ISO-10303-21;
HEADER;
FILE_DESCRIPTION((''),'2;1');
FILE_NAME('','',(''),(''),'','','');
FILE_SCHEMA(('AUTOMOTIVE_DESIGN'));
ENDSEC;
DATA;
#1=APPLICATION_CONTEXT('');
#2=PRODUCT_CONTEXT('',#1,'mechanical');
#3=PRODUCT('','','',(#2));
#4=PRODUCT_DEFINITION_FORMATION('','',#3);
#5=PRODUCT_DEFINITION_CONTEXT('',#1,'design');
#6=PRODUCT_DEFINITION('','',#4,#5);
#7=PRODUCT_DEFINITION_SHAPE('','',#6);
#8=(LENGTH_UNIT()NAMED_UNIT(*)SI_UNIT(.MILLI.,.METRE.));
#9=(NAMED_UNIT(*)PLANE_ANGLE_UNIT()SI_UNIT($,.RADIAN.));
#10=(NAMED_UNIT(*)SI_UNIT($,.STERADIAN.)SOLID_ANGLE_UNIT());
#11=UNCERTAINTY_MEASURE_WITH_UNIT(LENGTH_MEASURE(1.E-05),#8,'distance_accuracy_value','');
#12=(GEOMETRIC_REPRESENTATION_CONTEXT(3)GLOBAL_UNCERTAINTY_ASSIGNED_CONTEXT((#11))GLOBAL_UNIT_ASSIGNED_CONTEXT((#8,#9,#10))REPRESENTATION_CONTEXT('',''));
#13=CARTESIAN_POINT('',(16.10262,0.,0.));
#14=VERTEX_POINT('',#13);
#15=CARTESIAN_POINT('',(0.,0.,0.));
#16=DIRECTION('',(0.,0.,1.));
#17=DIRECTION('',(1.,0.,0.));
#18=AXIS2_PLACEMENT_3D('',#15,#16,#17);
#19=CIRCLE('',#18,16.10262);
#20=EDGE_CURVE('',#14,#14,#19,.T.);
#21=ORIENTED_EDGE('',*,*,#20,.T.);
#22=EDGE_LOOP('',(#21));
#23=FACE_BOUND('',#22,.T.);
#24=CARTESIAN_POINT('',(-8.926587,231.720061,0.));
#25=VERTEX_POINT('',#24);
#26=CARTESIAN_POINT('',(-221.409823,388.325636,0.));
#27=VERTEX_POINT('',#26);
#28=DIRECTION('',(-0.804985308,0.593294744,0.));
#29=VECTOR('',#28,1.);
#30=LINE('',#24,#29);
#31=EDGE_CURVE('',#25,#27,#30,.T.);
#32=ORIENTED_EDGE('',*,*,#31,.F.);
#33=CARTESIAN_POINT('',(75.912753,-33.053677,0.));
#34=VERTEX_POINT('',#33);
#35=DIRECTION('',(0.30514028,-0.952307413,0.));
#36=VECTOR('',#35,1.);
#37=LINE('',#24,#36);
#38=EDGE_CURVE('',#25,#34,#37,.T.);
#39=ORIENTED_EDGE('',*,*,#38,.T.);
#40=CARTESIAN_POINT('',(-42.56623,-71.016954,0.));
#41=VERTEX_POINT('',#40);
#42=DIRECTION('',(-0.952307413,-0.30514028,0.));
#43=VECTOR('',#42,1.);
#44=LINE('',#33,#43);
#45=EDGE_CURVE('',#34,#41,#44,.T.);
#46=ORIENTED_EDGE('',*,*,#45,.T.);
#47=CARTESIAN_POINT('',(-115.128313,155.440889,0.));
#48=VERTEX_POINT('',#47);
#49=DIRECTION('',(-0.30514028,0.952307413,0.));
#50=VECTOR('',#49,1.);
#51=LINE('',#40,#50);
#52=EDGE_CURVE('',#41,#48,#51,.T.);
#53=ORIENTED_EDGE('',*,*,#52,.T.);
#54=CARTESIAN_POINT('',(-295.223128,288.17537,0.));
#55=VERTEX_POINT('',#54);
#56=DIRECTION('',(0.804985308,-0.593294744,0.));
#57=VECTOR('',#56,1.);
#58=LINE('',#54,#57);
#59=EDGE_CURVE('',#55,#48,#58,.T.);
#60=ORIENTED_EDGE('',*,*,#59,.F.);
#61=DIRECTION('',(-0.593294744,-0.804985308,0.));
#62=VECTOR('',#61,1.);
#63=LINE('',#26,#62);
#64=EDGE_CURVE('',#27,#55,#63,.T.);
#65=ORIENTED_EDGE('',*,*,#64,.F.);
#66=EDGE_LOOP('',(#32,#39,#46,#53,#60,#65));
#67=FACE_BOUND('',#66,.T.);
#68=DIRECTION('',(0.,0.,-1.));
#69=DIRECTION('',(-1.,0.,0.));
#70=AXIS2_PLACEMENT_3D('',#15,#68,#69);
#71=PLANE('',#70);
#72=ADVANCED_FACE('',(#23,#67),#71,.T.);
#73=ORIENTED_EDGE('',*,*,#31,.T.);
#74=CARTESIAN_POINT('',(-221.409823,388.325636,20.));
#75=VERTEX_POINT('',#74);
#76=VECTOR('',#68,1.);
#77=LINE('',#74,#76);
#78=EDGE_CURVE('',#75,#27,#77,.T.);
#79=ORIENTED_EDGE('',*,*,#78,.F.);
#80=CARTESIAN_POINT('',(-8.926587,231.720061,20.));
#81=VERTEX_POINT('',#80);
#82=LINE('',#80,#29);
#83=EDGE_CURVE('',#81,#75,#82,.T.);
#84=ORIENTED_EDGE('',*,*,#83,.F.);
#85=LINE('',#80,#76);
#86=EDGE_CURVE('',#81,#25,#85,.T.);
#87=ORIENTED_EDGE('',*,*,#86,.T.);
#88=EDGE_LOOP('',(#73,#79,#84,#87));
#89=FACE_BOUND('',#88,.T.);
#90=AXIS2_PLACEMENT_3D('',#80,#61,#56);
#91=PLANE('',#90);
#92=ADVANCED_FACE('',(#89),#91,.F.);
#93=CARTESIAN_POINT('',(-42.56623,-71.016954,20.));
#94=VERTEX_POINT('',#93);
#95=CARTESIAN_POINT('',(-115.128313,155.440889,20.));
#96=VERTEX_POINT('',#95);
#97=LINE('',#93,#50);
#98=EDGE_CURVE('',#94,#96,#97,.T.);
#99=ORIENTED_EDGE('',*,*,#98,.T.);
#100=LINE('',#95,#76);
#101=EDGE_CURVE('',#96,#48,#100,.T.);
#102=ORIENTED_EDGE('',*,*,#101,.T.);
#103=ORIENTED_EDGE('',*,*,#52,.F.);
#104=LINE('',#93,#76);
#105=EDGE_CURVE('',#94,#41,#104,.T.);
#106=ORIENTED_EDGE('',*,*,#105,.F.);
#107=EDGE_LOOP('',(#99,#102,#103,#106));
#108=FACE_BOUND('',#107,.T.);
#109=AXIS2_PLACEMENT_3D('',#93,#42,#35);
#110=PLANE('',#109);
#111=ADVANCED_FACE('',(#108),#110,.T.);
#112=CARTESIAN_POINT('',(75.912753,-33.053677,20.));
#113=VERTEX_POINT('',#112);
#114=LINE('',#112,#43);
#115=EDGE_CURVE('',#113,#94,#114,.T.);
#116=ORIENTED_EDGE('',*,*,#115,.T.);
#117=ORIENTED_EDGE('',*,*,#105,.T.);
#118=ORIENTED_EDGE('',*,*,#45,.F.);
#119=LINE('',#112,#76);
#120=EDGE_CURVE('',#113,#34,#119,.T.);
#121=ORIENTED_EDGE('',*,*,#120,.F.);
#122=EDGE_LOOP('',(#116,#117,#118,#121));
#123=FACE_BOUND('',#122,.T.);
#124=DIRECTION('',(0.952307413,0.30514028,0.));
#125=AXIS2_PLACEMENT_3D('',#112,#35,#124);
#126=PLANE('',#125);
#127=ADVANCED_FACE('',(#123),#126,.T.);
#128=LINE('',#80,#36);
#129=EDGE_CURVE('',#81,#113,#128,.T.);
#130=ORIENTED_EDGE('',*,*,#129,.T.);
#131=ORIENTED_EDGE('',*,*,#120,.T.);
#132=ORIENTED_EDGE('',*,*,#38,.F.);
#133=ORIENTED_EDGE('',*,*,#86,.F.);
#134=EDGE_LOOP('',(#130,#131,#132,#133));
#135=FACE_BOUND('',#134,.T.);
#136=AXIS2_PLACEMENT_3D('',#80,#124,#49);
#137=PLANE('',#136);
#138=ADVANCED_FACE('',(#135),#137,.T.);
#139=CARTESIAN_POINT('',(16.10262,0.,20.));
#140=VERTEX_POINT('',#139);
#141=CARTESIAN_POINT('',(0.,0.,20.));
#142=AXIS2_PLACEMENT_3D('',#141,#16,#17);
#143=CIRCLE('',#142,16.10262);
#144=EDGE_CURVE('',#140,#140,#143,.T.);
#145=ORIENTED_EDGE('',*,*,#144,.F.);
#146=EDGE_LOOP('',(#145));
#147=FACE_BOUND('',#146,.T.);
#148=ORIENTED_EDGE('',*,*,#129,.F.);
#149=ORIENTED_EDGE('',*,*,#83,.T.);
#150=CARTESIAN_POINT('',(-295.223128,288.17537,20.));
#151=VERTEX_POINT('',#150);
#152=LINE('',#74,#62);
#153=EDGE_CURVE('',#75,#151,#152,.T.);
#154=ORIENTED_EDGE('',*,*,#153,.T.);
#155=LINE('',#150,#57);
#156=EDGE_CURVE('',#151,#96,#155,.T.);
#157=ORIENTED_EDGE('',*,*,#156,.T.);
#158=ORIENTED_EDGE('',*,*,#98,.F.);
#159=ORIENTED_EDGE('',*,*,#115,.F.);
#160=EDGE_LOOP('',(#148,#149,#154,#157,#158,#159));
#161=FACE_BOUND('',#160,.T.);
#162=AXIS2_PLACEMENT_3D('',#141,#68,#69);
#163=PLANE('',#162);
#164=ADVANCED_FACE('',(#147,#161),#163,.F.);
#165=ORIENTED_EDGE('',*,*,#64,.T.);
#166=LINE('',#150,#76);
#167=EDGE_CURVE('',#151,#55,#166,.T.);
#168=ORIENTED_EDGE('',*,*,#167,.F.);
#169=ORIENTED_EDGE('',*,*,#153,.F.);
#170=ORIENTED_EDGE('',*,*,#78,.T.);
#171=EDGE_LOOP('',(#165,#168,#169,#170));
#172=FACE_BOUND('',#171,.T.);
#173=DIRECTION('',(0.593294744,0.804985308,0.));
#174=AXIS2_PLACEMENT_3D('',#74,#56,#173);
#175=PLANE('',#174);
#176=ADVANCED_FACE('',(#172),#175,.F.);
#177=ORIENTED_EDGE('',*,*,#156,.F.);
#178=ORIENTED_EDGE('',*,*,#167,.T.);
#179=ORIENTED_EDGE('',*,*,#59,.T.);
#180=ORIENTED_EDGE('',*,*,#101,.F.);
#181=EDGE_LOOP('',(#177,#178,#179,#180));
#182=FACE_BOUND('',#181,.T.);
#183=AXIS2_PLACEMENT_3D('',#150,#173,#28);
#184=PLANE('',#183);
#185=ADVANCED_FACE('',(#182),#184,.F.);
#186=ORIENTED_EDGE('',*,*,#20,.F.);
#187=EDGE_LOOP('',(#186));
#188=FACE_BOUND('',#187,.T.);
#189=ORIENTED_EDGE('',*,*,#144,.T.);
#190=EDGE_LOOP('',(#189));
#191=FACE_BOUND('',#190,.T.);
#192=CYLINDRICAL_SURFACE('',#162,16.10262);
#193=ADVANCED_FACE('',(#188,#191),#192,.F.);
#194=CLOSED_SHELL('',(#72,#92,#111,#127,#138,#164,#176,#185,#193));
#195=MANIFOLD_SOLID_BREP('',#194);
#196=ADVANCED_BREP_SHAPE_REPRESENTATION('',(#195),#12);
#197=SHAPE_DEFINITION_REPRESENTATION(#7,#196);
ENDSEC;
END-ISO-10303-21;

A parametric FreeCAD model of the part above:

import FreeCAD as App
import Part
import Sketcher
from FreeCAD import Vector
Q = App.Units.Quantity

doc = App.newDocument("Part")
body = doc.addObject("PartDesign::Body", "Body")

# Sketch on XY plane
sketch1 = body.newObject("Sketcher::SketchObject", "Sketch")
sketch1.AttachmentSupport = (doc.getObject("XY_Plane"), [""])
sketch1.MapMode = "FlatFace"
sketch1.addGeometry(Part.LineSegment(Vector(76, -33, 0), Vector(-9, 232, 0)), False)
sketch1.addGeometry(Part.LineSegment(Vector(-9, 232, 0), Vector(-221, 388, 0)), False)
sketch1.addGeometry(Part.LineSegment(Vector(-221, 388, 0), Vector(-295, 288, 0)), False)
sketch1.addGeometry(Part.LineSegment(Vector(-295, 288, 0), Vector(-115, 155, 0)), False)
sketch1.addGeometry(Part.LineSegment(Vector(-115, 155, 0), Vector(-43, -71, 0)), False)
sketch1.addGeometry(Part.LineSegment(Vector(-43, -71, 0), Vector(76, -33, 0)), False)
sketch1.addGeometry(Part.Circle(Vector(0, 0, 0), Vector(0, 0, 1), 16), False)
sketch1.addConstraint(Sketcher.Constraint("Coincident", 0, 2, 1, 1))
sketch1.addConstraint(Sketcher.Constraint("Coincident", 1, 2, 2, 1))
sketch1.addConstraint(Sketcher.Constraint("Coincident", 2, 2, 3, 1))
sketch1.addConstraint(Sketcher.Constraint("Coincident", 3, 2, 4, 1))
sketch1.addConstraint(Sketcher.Constraint("Coincident", 4, 2, 5, 1))
sketch1.addConstraint(Sketcher.Constraint("Coincident", 5, 2, 0, 1))
sketch1.addConstraint(Sketcher.Constraint("Coincident", 6, 3, -1, 1))
sketch1.addConstraint(Sketcher.Constraint("Perpendicular", 1, 2))
sketch1.addConstraint(Sketcher.Constraint("Perpendicular", 2, 3))
sketch1.addConstraint(Sketcher.Constraint("Parallel", 0, 4))
sketch1.addConstraint(Sketcher.Constraint("Perpendicular", 4, 5))
sketch1.addConstraint(Sketcher.Constraint("Equal", 2, 5))
sketch1.addConstraint(Sketcher.Constraint("Diameter", 6, Q("32.20524 mm")))
sketch1.addConstraint(Sketcher.Constraint("DistanceX", 2, 2, 4, 2, Q("252.656899 mm")))
sketch1.addConstraint(Sketcher.Constraint("Distance", 2, Q("124.412538 mm")))
sketch1.addConstraint(Sketcher.Constraint("Distance", 3, Q("223.724351 mm")))
sketch1.addConstraint(Sketcher.Constraint("DistanceY", -1, 1, 0, 2, Q("231.720061 mm")))
sketch1.addConstraint(Sketcher.Constraint("DistanceX", 2, 2, -1, 1, Q("295.223128 mm")))
sketch1.addConstraint(Sketcher.Constraint("DistanceY", -1, 1, 2, 2, Q("288.17537 mm")))
sketch1.addConstraint(Sketcher.Constraint("DistanceY", -1, 1, 3, 2, Q("155.440889 mm")))
pad1 = body.newObject("PartDesign::Pad", "Pad")
pad1.Profile = sketch1
pad1.Length = 20

doc.recompute()
